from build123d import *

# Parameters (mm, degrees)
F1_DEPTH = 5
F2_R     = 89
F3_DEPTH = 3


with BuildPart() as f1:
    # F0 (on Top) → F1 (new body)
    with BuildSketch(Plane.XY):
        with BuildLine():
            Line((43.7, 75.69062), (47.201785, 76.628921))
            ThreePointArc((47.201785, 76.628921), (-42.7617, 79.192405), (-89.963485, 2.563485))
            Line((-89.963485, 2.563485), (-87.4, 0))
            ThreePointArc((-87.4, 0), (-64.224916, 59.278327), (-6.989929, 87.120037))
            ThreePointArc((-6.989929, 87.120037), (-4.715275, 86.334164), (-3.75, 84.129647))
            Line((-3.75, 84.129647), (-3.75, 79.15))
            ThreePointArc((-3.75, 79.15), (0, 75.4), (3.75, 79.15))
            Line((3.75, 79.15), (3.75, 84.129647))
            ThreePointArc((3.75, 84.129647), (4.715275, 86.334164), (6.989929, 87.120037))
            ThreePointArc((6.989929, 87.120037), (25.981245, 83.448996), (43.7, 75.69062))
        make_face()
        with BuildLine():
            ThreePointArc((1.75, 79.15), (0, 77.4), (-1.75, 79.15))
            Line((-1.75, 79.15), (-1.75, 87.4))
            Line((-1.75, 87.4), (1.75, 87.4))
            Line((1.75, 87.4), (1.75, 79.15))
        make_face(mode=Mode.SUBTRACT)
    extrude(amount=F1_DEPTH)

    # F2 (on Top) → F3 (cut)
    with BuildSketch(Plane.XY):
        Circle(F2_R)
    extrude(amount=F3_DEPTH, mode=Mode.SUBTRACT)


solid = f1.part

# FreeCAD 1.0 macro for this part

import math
import FreeCAD as App
import Part
import Sketcher

V = App.Vector
Q = App.Units.Quantity

doc = App.newDocument("Part")
body = doc.addObject("PartDesign::Body", "Body")

# Sketch on XY plane
sketch1 = doc.addObject("Sketcher::SketchObject", "Sketch")
body.addObject(sketch1)
sketch1.AttachmentSupport = (doc.XY_Plane, [""])
sketch1.MapMode = "FlatFace"
sketch1.addGeometry([
    Part.LineSegment(V(43.7, 75.7, 0), V(47.2, 76.6, 0)),  # 0
    Part.ArcOfCircle(Part.Circle(V(0, 0, 0), V(0, 0, 1), 90), math.radians(58), math.radians(178)),  # 1
    Part.LineSegment(V(-90, 2.6, 0), V(-87.4, 0, 0)),  # 2
    Part.ArcOfCircle(Part.Circle(V(0, 0, 0), V(0, 0, 1), 87.4), math.radians(95), math.radians(180)),  # 3
    Part.ArcOfCircle(Part.Circle(V(-6.7, 84.1, 0), V(0, 0, 1), 3), math.radians(0), math.radians(95)),  # 4
    Part.LineSegment(V(-3.8, 84.1, 0), V(-3.8, 79.2, 0)),  # 5
    Part.ArcOfCircle(Part.Circle(V(0, 79.2, 0), V(0, 0, 1), 3.8), math.radians(180), math.radians(360)),  # 6
    Part.LineSegment(V(3.8, 79.2, 0), V(3.8, 84.1, 0)),  # 7
    Part.ArcOfCircle(Part.Circle(V(6.7, 84.1, 0), V(0, 0, 1), 3), math.radians(85), math.radians(180)),  # 8
    Part.ArcOfCircle(Part.Circle(V(0, 0, 0), V(0, 0, 1), 87.4), math.radians(60), math.radians(85)),  # 9
    Part.LineSegment(V(1.8, 87.4, 0), V(1.8, 79.2, 0)),  # 10
    Part.ArcOfCircle(Part.Circle(V(0, 79.2, 0), V(0, 0, 1), 1.8), math.radians(180), math.radians(360)),  # 11
    Part.LineSegment(V(-1.8, 79.2, 0), V(-1.8, 87.4, 0)),  # 12
    Part.LineSegment(V(-1.8, 87.4, 0), V(1.8, 87.4, 0)),  # 13
], False)
sketch1.addConstraint([
    Sketcher.Constraint("Coincident", 0, 2, 1, 1),
    Sketcher.Constraint("Coincident", 1, 2, 2, 1),
    Sketcher.Constraint("Coincident", 2, 2, 3, 2),
    Sketcher.Constraint("Tangent", 3, 1, 4, 2),
    Sketcher.Constraint("Tangent", 4, 1, 5, 1),
    Sketcher.Constraint("Tangent", 5, 2, 6, 1),
    Sketcher.Constraint("Tangent", 6, 2, 7, 1),
    Sketcher.Constraint("Tangent", 7, 2, 8, 2),
    Sketcher.Constraint("Tangent", 8, 1, 9, 2),
    Sketcher.Constraint("Coincident", 9, 1, 0, 1),
    Sketcher.Constraint("Tangent", 10, 2, 11, 2),
    Sketcher.Constraint("Tangent", 11, 1, 12, 1),
    Sketcher.Constraint("Coincident", 12, 2, 13, 1),
    Sketcher.Constraint("Coincident", 13, 2, 10, 1),
    Sketcher.Constraint("Vertical", 5),
    Sketcher.Constraint("Vertical", 7),
    Sketcher.Constraint("Vertical", 10),
    Sketcher.Constraint("Vertical", 12),
    Sketcher.Constraint("Horizontal", 13),
    Sketcher.Constraint("Coincident", 1, 3, -1, 1),
    Sketcher.Constraint("Coincident", 3, 3, -1, 1),
    Sketcher.Constraint("Coincident", 11, 3, 6, 3),
    Sketcher.Constraint("Equal", 4, 8),
    Sketcher.Constraint("Symmetric", 4, 3, 8, 3, -2),
    Sketcher.Constraint("PointOnObject", 2, 2, -1),
    Sketcher.Constraint("Equal", 0, 2),
    Sketcher.Constraint("Radius", 1, Q("90.000001 mm")),
    Sketcher.Constraint("Radius", 4, Q("2.999999 mm")),
    Sketcher.Constraint("Radius", 3, Q("87.400001 mm")),
    Sketcher.Constraint("Angle", 0, Q("15.000008 deg")),
    Sketcher.Constraint("Angle", 2, Q("-45 deg")),
    Sketcher.Constraint("Radius", 6, Q("3.75 mm")),
    Sketcher.Constraint("Radius", 11, Q("1.75 mm")),
    Sketcher.Constraint("DistanceY", 10, 2, 10, 1, Q("8.25 mm")),
    Sketcher.Constraint("DistanceX", -1, 1, 9, 1, Q("43.7 mm")),
    Sketcher.Constraint("DistanceY", -1, 1, 12, 2, Q("87.4 mm")),
    Sketcher.Constraint("Radius", 9, Q("87.399984 mm")),
])
pad1 = doc.addObject("PartDesign::Pad", "Pad")
body.addObject(pad1)
pad1.Profile = sketch1
pad1.Length = 5

# Sketch on XY plane
sketch2 = doc.addObject("Sketcher::SketchObject", "Sketch001")
body.addObject(sketch2)
sketch2.AttachmentSupport = (doc.XY_Plane, [""])
sketch2.MapMode = "FlatFace"
sketch2.addGeometry(Part.Circle(V(0, 0, 0), V(0, 0, 1), 89), False)
sketch2.addConstraint([
    Sketcher.Constraint("Coincident", 0, 3, -1, 1),
    Sketcher.Constraint("Diameter", 0, Q("178 mm")),
])
pocket1 = doc.addObject("PartDesign::Pocket", "Pocket")
body.addObject(pocket1)
pocket1.Profile = sketch2
pocket1.Length = 3
pocket1.Reversed = True

doc.recompute()
